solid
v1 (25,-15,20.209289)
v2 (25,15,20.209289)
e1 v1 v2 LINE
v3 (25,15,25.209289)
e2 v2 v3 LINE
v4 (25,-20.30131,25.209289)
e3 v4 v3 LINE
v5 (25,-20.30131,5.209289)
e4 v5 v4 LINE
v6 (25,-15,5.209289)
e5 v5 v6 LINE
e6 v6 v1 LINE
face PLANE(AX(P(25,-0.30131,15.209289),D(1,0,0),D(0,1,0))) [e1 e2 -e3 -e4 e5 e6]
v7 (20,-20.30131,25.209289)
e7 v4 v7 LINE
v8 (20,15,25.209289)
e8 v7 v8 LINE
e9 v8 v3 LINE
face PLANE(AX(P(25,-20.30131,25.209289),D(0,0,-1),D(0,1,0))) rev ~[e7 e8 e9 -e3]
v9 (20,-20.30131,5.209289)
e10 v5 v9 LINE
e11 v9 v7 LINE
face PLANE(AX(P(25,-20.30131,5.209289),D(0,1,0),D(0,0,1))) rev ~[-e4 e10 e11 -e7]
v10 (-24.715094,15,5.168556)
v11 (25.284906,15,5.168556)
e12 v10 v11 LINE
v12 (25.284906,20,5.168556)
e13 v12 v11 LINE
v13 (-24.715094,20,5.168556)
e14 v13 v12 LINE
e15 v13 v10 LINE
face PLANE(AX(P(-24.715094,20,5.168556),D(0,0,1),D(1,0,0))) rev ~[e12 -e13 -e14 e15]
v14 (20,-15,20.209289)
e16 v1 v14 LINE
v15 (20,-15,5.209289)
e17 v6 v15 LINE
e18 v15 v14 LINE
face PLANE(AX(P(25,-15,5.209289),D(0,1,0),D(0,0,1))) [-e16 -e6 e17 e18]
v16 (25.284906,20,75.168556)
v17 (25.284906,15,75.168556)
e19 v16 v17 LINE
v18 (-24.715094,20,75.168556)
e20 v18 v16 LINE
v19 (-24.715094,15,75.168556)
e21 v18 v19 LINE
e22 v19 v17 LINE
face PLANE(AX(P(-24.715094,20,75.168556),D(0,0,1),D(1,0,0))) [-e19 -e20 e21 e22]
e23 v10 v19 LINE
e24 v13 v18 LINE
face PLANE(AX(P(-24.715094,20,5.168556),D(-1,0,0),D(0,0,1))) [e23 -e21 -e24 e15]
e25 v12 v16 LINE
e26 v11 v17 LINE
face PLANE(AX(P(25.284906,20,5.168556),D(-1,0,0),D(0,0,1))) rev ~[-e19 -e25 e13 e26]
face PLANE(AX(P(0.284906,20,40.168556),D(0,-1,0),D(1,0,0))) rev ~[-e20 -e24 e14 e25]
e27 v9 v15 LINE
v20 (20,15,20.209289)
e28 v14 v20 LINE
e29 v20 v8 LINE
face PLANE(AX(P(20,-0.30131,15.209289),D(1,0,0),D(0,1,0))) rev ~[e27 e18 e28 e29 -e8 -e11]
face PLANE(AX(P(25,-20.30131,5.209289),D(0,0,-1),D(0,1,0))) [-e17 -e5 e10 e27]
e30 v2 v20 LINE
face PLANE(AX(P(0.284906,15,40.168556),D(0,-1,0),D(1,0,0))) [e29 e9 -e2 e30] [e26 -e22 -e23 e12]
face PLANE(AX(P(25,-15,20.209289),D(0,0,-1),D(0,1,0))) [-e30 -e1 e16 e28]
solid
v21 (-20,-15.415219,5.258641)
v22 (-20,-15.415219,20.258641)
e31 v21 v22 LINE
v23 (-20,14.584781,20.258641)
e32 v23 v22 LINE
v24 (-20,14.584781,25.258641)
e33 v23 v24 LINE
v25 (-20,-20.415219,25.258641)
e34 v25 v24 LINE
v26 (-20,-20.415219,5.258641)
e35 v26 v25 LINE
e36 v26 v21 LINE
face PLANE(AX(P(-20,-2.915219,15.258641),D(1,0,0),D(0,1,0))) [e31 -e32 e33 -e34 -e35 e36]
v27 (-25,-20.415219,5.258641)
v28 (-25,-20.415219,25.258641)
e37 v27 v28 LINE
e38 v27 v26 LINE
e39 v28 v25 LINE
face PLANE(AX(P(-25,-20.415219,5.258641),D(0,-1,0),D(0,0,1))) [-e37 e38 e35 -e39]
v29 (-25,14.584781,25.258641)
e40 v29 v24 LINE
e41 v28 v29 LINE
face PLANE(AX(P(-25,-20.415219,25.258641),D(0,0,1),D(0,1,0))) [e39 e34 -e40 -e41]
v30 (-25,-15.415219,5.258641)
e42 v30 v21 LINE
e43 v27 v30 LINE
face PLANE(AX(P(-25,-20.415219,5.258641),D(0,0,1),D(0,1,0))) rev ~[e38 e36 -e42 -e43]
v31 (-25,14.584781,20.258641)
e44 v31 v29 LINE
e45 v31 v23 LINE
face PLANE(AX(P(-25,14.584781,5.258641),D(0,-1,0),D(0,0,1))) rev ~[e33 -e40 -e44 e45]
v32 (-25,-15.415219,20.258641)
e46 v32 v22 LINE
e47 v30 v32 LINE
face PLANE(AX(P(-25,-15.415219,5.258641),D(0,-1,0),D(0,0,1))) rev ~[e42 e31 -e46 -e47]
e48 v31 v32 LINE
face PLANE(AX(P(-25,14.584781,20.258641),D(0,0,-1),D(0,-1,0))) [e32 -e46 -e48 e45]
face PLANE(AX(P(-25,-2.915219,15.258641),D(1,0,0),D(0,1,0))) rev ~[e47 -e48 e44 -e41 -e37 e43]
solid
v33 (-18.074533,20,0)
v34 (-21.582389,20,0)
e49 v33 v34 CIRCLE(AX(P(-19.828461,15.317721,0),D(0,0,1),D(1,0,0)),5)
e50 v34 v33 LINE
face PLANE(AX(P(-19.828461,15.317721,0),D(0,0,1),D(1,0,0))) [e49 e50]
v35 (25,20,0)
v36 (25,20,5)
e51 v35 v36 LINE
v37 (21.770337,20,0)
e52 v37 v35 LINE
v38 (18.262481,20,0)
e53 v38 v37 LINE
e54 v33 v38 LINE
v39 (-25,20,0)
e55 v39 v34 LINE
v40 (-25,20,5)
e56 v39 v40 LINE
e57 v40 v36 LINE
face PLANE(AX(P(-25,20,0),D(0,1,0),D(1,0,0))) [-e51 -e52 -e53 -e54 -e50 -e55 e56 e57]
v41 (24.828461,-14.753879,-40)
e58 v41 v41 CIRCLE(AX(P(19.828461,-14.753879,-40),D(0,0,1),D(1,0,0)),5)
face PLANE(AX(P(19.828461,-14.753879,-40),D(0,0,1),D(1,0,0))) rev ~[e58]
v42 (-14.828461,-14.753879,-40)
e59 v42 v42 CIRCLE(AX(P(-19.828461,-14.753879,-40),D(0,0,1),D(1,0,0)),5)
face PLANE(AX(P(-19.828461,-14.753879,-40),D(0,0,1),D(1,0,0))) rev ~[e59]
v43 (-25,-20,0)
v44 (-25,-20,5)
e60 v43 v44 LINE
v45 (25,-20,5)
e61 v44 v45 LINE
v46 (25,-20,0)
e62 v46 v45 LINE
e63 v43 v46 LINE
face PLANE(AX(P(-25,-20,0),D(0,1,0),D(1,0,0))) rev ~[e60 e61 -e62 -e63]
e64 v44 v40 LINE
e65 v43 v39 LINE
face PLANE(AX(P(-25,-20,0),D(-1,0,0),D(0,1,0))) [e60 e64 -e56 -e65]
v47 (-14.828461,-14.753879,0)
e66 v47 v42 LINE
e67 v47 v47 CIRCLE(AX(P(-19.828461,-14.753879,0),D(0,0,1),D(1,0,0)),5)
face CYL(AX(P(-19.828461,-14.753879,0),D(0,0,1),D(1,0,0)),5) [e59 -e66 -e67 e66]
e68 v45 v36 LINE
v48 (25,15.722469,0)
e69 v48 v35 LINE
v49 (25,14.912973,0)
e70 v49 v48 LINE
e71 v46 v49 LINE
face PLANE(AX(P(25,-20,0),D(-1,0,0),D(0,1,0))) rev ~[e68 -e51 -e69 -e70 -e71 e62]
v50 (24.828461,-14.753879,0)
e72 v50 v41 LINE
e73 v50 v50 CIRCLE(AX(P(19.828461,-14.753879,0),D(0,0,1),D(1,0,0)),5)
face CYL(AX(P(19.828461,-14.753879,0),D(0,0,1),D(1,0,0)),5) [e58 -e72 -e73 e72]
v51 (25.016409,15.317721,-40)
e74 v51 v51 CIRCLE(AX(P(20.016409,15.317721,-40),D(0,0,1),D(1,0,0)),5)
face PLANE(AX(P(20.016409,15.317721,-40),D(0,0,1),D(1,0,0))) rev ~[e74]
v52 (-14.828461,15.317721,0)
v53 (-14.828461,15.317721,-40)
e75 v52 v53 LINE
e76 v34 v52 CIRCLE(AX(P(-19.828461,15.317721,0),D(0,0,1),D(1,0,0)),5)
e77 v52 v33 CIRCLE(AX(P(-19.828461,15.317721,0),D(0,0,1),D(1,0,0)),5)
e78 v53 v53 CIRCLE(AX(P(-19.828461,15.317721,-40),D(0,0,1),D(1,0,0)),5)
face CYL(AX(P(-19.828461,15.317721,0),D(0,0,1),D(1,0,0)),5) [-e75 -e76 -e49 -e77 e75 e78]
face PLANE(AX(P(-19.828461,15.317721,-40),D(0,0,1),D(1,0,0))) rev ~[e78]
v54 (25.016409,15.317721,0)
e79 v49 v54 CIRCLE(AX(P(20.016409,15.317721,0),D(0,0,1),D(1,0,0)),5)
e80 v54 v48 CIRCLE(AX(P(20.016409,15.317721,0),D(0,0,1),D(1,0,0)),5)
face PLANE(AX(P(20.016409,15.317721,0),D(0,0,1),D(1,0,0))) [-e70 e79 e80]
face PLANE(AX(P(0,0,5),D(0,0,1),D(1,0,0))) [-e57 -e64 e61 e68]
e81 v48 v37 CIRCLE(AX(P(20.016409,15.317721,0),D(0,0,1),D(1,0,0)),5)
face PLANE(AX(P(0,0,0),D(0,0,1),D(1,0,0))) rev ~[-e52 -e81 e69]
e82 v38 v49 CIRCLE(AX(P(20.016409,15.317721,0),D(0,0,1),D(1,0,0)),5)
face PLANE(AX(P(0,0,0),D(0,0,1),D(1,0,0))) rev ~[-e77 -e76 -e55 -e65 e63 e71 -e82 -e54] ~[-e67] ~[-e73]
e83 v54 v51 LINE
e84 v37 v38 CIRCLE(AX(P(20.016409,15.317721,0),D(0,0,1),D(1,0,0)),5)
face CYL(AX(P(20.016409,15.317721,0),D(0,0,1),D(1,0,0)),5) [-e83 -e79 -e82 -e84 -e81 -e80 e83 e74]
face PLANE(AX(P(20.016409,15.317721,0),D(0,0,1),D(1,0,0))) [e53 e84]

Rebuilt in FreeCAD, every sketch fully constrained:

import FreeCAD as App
import Part
import Sketcher

V = App.Vector
Q = App.Units.Quantity

doc = App.newDocument("Part")
params = doc.addObject("Spreadsheet::Sheet", "Params")
for row, (alias, value) in enumerate([
    ("sketch1_diameter", "10 mm"),
    ("pad1_length", "40 mm"),
    ("sketch2_width", "50 mm"),
    ("sketch2_height", "40 mm"),
    ("pad2_length", "5 mm"),
    ("sketch3_width", "50 mm"),
    ("sketch3_height", "70 mm"),
    ("pad3_length", "5 mm"),
    ("sketch4_width", "40 mm"),
    ("sketch4_height", "20 mm"),
    ("pad4_length", "5 mm"),
    ("sketch5_width", "30 mm"),
    ("sketch5_height", "15 mm"),
    ("pocket1_length", "5 mm"),
    ("sketch6_width", "35 mm"),
    ("sketch6_height", "20 mm"),
    ("pad5_length", "5 mm"),
    ("sketch7_width", "30 mm"),
    ("sketch7_height", "15 mm"),
    ("pocket2_length", "5 mm"),
], start=1):
    params.set(f"A{row}", alias)
    params.set(f"B{row}", "=" + value)
    params.setAlias(f"B{row}", alias)

body = doc.addObject("PartDesign::Body", "Body")
body.AllowCompound = True

sketch1 = body.newObject("Sketcher::SketchObject", "Sketch")
sketch1.AttachmentSupport = (doc.getObject("XY_Plane"), [""])
sketch1.MapMode = "FlatFace"
sketch1.addGeometry([
    Part.Circle(V(-19.828461, 15.317721, 0), V(0, 0, 1), 5),
    Part.Circle(V(-19.828461, -14.753879, 0), V(0, 0, 1), 5),
    Part.Circle(V(20.016409, 15.317721, 0), V(0, 0, 1), 5),
    Part.Circle(V(19.828461, -14.753879, 0), V(0, 0, 1), 5),
], False)
sketch1.addConstraint([
    Sketcher.Constraint("Equal", 0, 1),
    Sketcher.Constraint("Equal", 1, 2),
    Sketcher.Constraint("Equal", 2, 3),
    Sketcher.Constraint("Symmetric", 1, 3, 3, 3, -2),
    Sketcher.Constraint("Horizontal", 0, 3, 2, 3),
    Sketcher.Constraint("Vertical", 0, 3, 1, 3),
    Sketcher.Constraint("Diameter", 0, Q("10 mm")),
    Sketcher.Constraint("DistanceY", 1, 3, 0, 3, Q("30.0716 mm")),
    Sketcher.Constraint("DistanceX", 0, 3, -1, 1, Q("19.828461 mm")),
    Sketcher.Constraint("DistanceY", -1, 1, 0, 3, Q("15.317721 mm")),
    Sketcher.Constraint("DistanceX", -1, 1, 2, 3, Q("20.016409 mm")),
])
sketch1.setExpression("Constraints[6]", "Params.sketch1_diameter")
pad1 = body.newObject("PartDesign::Pad", "Pad")
pad1.Profile = sketch1
pad1.setExpression("Length", "Params.pad1_length")
pad1.Reversed = True

sketch2 = body.newObject("Sketcher::SketchObject", "Sketch001")
sketch2.AttachmentSupport = (doc.getObject("XY_Plane"), [""])
sketch2.MapMode = "FlatFace"
sketch2.addGeometry([
    Part.LineSegment(V(-25, 20, 0), V(-25, -20, 0)),
    Part.LineSegment(V(-25, -20, 0), V(25, -20, 0)),
    Part.LineSegment(V(25, -20, 0), V(25, 20, 0)),
    Part.LineSegment(V(25, 20, 0), V(-25, 20, 0)),
], False)
sketch2.addConstraint([
    Sketcher.Constraint("Coincident", 0, 2, 1, 1),
    Sketcher.Constraint("Coincident", 1, 2, 2, 1),
    Sketcher.Constraint("Coincident", 2, 2, 3, 1),
    Sketcher.Constraint("Coincident", 3, 2, 0, 1),
    Sketcher.Constraint("Vertical", 0),
    Sketcher.Constraint("Horizontal", 1),
    Sketcher.Constraint("Vertical", 2),
    Sketcher.Constraint("Horizontal", 3),
    Sketcher.Constraint("Symmetric", 0, 2, 2, 2, -1, 1),
    Sketcher.Constraint("DistanceX", 1, 1, 1, 2, Q("50 mm")),
    Sketcher.Constraint("DistanceY", 0, 2, 0, 1, Q("40 mm")),
])
sketch2.setExpression("Constraints[9]", "Params.sketch2_width")
sketch2.setExpression("Constraints[10]", "Params.sketch2_height")
pad2 = body.newObject("PartDesign::Pad", "Pad001")
pad2.Profile = sketch2
pad2.setExpression("Length", "Params.pad2_length")
body2 = doc.addObject("PartDesign::Body", "Body001")

sketch3 = body2.newObject("Sketcher::SketchObject", "Sketch002")
sketch3.AttachmentSupport = (doc.getObject("XZ_Plane001"), [""])
sketch3.MapMode = "FlatFace"
sketch3.AttachmentOffset = App.Placement(V(0, 0, -20), App.Rotation())
sketch3.addGeometry([
    Part.LineSegment(V(-24.715094, 75.168556, 0), V(-24.715094, 5.168556, 0)),
    Part.LineSegment(V(-24.715094, 5.168556, 0), V(25.284906, 5.168556, 0)),
    Part.LineSegment(V(25.284906, 5.168556, 0), V(25.284906, 75.168556, 0)),
    Part.LineSegment(V(25.284906, 75.168556, 0), V(-24.715094, 75.168556, 0)),
], False)
sketch3.addConstraint([
    Sketcher.Constraint("Coincident", 0, 2, 1, 1),
    Sketcher.Constraint("Coincident", 1, 2, 2, 1),
    Sketcher.Constraint("Coincident", 2, 2, 3, 1),
    Sketcher.Constraint("Coincident", 3, 2, 0, 1),
    Sketcher.Constraint("Vertical", 0),
    Sketcher.Constraint("Horizontal", 1),
    Sketcher.Constraint("Vertical", 2),
    Sketcher.Constraint("Horizontal", 3),
    Sketcher.Constraint("DistanceX", 1, 1, 1, 2, Q("50 mm")),
    Sketcher.Constraint("DistanceY", 0, 2, 0, 1, Q("70 mm")),
    Sketcher.Constraint("DistanceX", 0, 2, -1, 1, Q("24.715094 mm")),
    Sketcher.Constraint("DistanceY", -1, 1, 0, 2, Q("5.168556 mm")),
])
sketch3.setExpression("Constraints[8]", "Params.sketch3_width")
sketch3.setExpression("Constraints[9]", "Params.sketch3_height")
pad3 = body2.newObject("PartDesign::Pad", "Pad002")
pad3.Profile = sketch3
pad3.setExpression("Length", "Params.pad3_length")

sketch4 = body2.newObject("Sketcher::SketchObject", "Sketch003")
sketch4.AttachmentSupport = (doc.getObject("YZ_Plane001"), [""])
sketch4.MapMode = "FlatFace"
sketch4.AttachmentOffset = App.Placement(V(0, 0, 25), App.Rotation())
sketch4.addGeometry([
    Part.LineSegment(V(-20.30131, 25.209289, 0), V(-20.30131, 5.209289, 0)),
    Part.LineSegment(V(-20.30131, 5.209289, 0), V(19.69869, 5.209289, 0)),
    Part.LineSegment(V(19.69869, 5.209289, 0), V(19.69869, 25.209289, 0)),
    Part.LineSegment(V(19.69869, 25.209289, 0), V(-20.30131, 25.209289, 0)),
], False)
sketch4.addConstraint([
    Sketcher.Constraint("Coincident", 0, 2, 1, 1),
    Sketcher.Constraint("Coincident", 1, 2, 2, 1),
    Sketcher.Constraint("Coincident", 2, 2, 3, 1),
    Sketcher.Constraint("Coincident", 3, 2, 0, 1),
    Sketcher.Constraint("Vertical", 0),
    Sketcher.Constraint("Horizontal", 1),
    Sketcher.Constraint("Vertical", 2),
    Sketcher.Constraint("Horizontal", 3),
    Sketcher.Constraint("DistanceX", 1, 1, 1, 2, Q("40 mm")),
    Sketcher.Constraint("DistanceY", 0, 2, 0, 1, Q("20 mm")),
    Sketcher.Constraint("DistanceX", 0, 2, -1, 1, Q("20.30131 mm")),
    Sketcher.Constraint("DistanceY", -1, 1, 0, 2, Q("5.209289 mm")),
])
sketch4.setExpression("Constraints[8]", "Params.sketch4_width")
sketch4.setExpression("Constraints[9]", "Params.sketch4_height")
pad4 = body2.newObject("PartDesign::Pad", "Pad003")
pad4.Profile = sketch4
pad4.setExpression("Length", "Params.pad4_length")
pad4.Reversed = True

sketch5 = body2.newObject("Sketcher::SketchObject", "Sketch004")
sketch5.AttachmentSupport = (doc.getObject("YZ_Plane001"), [""])
sketch5.MapMode = "FlatFace"
sketch5.AttachmentOffset = App.Placement(V(0, 0, 25), App.Rotation())
sketch5.addGeometry([
    Part.LineSegment(V(-15, 20.209289, 0), V(-15, 5.209289, 0)),
    Part.LineSegment(V(-15, 5.209289, 0), V(15, 5.209289, 0)),
    Part.LineSegment(V(15, 5.209289, 0), V(15, 20.209289, 0)),
    Part.LineSegment(V(15, 20.209289, 0), V(-15, 20.209289, 0)),
], False)
sketch5.addConstraint([
    Sketcher.Constraint("Coincident", 0, 2, 1, 1),
    Sketcher.Constraint("Coincident", 1, 2, 2, 1),
    Sketcher.Constraint("Coincident", 2, 2, 3, 1),
    Sketcher.Constraint("Coincident", 3, 2, 0, 1),
    Sketcher.Constraint("Vertical", 0),
    Sketcher.Constraint("Horizontal", 1),
    Sketcher.Constraint("Vertical", 2),
    Sketcher.Constraint("Horizontal", 3),
    Sketcher.Constraint("DistanceX", 1, 1, 1, 2, Q("30 mm")),
    Sketcher.Constraint("DistanceY", 0, 2, 0, 1, Q("15 mm")),
    Sketcher.Constraint("DistanceX", 0, 2, -1, 1, Q("15 mm")),
    Sketcher.Constraint("DistanceY", -1, 1, 0, 2, Q("5.209289 mm")),
])
sketch5.setExpression("Constraints[8]", "Params.sketch5_width")
sketch5.setExpression("Constraints[9]", "Params.sketch5_height")
pocket1 = body2.newObject("PartDesign::Pocket", "Pocket")
pocket1.Profile = sketch5
pocket1.setExpression("Length", "Params.pocket1_length")
body3 = doc.addObject("PartDesign::Body", "Body002")

sketch6 = body3.newObject("Sketcher::SketchObject", "Sketch005")
sketch6.AttachmentSupport = (doc.getObject("YZ_Plane002"), [""])
sketch6.MapMode = "FlatFace"
sketch6.AttachmentOffset = App.Placement(V(0, 0, -25), App.Rotation())
sketch6.addGeometry([
    Part.LineSegment(V(-20.415219, 25.258641, 0), V(-20.415219, 5.258641, 0)),
    Part.LineSegment(V(-20.415219, 5.258641, 0), V(14.584781, 5.258641, 0)),
    Part.LineSegment(V(14.584781, 5.258641, 0), V(14.584781, 25.258641, 0)),
    Part.LineSegment(V(14.584781, 25.258641, 0), V(-20.415219, 25.258641, 0)),
], False)
sketch6.addConstraint([
    Sketcher.Constraint("Coincident", 0, 2, 1, 1),
    Sketcher.Constraint("Coincident", 1, 2, 2, 1),
    Sketcher.Constraint("Coincident", 2, 2, 3, 1),
    Sketcher.Constraint("Coincident", 3, 2, 0, 1),
    Sketcher.Constraint("Vertical", 0),
    Sketcher.Constraint("Horizontal", 1),
    Sketcher.Constraint("Vertical", 2),
    Sketcher.Constraint("Horizontal", 3),
    Sketcher.Constraint("DistanceX", 1, 1, 1, 2, Q("35 mm")),
    Sketcher.Constraint("DistanceY", 0, 2, 0, 1, Q("20 mm")),
    Sketcher.Constraint("DistanceX", 0, 2, -1, 1, Q("20.415219 mm")),
    Sketcher.Constraint("DistanceY", -1, 1, 0, 2, Q("5.258641 mm")),
])
sketch6.setExpression("Constraints[8]", "Params.sketch6_width")
sketch6.setExpression("Constraints[9]", "Params.sketch6_height")
pad5 = body3.newObject("PartDesign::Pad", "Pad004")
pad5.Profile = sketch6
pad5.setExpression("Length", "Params.pad5_length")

sketch7 = body3.newObject("Sketcher::SketchObject", "Sketch006")
sketch7.AttachmentSupport = (doc.getObject("YZ_Plane002"), [""])
sketch7.MapMode = "FlatFace"
sketch7.AttachmentOffset = App.Placement(V(0, 0, -25), App.Rotation())
sketch7.addGeometry([
    Part.LineSegment(V(14.584781, 20.258641, 0), V(14.584781, 5.258641, 0)),
    Part.LineSegment(V(14.584781, 5.258641, 0), V(-15.415219, 5.258641, 0)),
    Part.LineSegment(V(-15.415219, 5.258641, 0), V(-15.415219, 20.258641, 0)),
    Part.LineSegment(V(-15.415219, 20.258641, 0), V(14.584781, 20.258641, 0)),
], False)
sketch7.addConstraint([
    Sketcher.Constraint("Coincident", 0, 2, 1, 1),
    Sketcher.Constraint("Coincident", 1, 2, 2, 1),
    Sketcher.Constraint("Coincident", 2, 2, 3, 1),
    Sketcher.Constraint("Coincident", 3, 2, 0, 1),
    Sketcher.Constraint("Vertical", 0),
    Sketcher.Constraint("Horizontal", 1),
    Sketcher.Constraint("Vertical", 2),
    Sketcher.Constraint("Horizontal", 3),
    Sketcher.Constraint("DistanceX", 1, 2, 1, 1, Q("30 mm")),
    Sketcher.Constraint("DistanceY", 0, 2, 0, 1, Q("15 mm")),
    Sketcher.Constraint("DistanceX", -1, 1, 0, 2, Q("14.584781 mm")),
    Sketcher.Constraint("DistanceY", -1, 1, 0, 2, Q("5.258641 mm")),
])
sketch7.setExpression("Constraints[8]", "Params.sketch7_width")
sketch7.setExpression("Constraints[9]", "Params.sketch7_height")
pocket2 = body3.newObject("PartDesign::Pocket", "Pocket001")
pocket2.Profile = sketch7
pocket2.setExpression("Length", "Params.pocket2_length")
pocket2.Reversed = True

doc.recompute()
